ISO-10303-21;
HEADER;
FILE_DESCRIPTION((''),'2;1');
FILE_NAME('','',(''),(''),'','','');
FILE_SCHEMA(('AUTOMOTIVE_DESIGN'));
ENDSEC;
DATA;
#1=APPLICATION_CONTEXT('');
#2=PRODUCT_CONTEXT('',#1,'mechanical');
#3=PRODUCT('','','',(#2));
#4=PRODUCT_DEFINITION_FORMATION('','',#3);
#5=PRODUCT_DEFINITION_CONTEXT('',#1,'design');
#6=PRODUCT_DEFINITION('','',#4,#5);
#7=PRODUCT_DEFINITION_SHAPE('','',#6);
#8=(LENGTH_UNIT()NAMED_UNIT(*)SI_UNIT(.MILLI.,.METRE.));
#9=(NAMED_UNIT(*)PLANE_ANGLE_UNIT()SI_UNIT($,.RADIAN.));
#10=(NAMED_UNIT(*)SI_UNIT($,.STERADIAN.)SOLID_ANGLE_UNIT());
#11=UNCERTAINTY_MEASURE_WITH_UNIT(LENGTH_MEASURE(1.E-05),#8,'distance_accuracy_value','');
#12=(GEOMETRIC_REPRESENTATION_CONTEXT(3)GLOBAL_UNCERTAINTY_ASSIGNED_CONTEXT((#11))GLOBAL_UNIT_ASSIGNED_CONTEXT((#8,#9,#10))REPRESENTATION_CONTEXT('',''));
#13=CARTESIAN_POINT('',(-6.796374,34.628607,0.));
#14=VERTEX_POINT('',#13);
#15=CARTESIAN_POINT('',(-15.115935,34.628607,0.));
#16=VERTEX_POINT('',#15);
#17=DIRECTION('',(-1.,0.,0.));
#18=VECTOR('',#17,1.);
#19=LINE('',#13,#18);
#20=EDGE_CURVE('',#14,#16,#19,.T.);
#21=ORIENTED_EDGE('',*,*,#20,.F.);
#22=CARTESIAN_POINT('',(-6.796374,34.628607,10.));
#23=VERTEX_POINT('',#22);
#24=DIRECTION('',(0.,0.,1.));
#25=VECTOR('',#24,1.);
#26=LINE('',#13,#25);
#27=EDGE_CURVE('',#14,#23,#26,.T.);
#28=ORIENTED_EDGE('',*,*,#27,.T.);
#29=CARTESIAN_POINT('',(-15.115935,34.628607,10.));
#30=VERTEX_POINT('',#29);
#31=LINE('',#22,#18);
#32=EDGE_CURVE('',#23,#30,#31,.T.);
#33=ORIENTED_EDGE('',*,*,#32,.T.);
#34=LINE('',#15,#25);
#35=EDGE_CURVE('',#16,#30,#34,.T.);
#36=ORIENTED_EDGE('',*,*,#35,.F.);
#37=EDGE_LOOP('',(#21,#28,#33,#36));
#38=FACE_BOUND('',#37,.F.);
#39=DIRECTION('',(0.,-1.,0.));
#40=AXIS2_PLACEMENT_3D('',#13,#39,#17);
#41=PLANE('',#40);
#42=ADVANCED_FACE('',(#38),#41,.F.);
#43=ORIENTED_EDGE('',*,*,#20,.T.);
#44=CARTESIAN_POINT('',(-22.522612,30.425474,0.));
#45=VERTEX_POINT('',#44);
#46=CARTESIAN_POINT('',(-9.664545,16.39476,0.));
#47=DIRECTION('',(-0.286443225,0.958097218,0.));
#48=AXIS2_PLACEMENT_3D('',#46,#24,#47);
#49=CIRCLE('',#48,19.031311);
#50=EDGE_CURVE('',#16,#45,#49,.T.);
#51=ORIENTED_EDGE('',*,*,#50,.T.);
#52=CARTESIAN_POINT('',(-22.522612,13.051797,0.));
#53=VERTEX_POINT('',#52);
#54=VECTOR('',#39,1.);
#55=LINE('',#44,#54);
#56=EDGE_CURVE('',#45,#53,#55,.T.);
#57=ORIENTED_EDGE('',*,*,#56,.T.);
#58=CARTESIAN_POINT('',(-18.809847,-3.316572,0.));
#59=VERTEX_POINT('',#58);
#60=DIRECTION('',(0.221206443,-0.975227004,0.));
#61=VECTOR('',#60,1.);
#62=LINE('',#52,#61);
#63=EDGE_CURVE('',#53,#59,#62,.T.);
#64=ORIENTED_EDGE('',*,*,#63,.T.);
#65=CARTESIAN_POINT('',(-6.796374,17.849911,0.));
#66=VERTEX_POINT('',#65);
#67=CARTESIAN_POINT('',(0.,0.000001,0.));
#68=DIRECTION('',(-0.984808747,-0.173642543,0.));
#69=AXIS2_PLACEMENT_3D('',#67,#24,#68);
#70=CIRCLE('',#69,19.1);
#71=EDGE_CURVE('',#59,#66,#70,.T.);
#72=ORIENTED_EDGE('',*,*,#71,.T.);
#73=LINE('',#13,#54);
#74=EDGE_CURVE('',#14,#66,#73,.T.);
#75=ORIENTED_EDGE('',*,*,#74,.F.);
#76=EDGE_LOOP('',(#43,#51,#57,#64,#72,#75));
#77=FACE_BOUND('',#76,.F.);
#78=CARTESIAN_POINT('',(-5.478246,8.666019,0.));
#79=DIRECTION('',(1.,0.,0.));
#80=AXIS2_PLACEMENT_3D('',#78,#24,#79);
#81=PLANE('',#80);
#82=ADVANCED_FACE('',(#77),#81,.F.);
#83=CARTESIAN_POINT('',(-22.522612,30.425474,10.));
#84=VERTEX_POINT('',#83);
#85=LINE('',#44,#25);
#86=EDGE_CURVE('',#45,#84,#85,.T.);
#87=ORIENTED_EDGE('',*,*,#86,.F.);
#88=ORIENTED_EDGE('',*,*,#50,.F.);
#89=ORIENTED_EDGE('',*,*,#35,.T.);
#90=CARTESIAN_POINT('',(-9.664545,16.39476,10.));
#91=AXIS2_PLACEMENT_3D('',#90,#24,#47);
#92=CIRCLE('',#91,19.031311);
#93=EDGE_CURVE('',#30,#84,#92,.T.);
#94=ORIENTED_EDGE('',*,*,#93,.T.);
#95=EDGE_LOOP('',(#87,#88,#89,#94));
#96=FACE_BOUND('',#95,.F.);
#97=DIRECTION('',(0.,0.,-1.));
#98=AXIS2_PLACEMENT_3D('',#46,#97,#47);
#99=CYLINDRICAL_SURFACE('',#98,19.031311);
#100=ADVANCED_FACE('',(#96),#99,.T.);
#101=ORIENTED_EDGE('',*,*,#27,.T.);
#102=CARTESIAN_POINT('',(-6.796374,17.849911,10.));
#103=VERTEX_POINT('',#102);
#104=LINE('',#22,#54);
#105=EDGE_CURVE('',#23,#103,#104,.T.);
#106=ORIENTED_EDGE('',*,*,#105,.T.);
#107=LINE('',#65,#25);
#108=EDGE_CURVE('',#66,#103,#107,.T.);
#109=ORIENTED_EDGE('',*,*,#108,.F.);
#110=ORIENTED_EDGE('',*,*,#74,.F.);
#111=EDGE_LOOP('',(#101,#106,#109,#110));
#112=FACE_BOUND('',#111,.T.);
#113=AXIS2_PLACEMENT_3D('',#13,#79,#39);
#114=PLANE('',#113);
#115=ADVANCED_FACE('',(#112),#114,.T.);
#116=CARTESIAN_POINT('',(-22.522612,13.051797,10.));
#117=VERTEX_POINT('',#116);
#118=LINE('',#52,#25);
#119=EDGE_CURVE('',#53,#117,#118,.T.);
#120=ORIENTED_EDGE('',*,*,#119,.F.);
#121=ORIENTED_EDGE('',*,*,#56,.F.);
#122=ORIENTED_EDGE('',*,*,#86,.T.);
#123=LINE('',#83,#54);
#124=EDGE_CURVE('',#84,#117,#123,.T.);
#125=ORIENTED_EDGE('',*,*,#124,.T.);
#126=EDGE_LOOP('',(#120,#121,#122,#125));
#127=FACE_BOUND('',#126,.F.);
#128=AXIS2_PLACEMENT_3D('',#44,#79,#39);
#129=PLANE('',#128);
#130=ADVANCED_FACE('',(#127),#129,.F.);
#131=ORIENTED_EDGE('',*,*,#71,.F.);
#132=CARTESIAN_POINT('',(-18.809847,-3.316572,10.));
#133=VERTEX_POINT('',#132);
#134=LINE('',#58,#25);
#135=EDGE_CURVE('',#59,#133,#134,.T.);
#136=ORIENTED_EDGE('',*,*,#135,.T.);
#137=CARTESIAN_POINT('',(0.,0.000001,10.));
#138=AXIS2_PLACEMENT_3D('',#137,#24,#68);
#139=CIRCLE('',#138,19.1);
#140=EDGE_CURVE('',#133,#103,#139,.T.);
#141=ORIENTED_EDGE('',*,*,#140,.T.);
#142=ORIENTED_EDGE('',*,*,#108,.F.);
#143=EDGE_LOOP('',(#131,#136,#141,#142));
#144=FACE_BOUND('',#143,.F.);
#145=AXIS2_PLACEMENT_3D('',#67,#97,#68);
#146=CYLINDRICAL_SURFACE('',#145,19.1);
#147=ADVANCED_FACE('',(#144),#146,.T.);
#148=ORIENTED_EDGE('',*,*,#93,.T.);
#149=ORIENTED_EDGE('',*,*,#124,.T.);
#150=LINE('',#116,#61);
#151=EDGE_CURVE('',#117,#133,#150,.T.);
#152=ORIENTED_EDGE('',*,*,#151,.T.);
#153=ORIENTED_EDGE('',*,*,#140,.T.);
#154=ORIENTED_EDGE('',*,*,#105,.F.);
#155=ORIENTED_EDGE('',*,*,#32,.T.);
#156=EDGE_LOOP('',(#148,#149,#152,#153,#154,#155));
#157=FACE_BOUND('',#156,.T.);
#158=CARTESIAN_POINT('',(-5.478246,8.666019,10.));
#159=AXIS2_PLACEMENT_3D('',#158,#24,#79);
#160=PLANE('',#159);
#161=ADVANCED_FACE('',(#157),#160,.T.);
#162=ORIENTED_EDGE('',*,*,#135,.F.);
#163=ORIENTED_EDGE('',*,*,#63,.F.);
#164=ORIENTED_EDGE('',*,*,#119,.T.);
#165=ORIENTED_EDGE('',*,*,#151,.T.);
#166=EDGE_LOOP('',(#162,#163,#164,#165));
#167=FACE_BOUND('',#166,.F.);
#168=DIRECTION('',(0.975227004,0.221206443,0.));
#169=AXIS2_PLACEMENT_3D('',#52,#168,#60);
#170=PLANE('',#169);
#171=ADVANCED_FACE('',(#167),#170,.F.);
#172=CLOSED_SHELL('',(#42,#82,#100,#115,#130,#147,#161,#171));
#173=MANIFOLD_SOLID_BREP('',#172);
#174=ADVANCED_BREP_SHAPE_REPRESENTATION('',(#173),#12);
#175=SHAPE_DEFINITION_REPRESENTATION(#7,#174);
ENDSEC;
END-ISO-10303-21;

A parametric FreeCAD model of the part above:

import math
import FreeCAD as App
import Part
import Sketcher
from FreeCAD import Vector

doc = App.newDocument("Part")
body = doc.addObject("PartDesign::Body", "Body")

# Sketch on XY plane
sketch1 = doc.addObject("Sketcher::SketchObject", "Sketch")
body.addObject(sketch1)
sketch1.AttachmentSupport = (doc.XY_Plane, [""])
sketch1.MapMode = "FlatFace"
sketch1.addGeometry([
    Part.ArcOfCircle(Part.Circle(Vector(0, 0, 0), Vector(0, 0, 1), 19), math.radians(-170), math.radians(111)),  # 0
    Part.LineSegment(Vector(-7, 18, 0), Vector(-7, 35, 0)),  # 1
    Part.LineSegment(Vector(-7, 35, 0), Vector(-15, 35, 0)),  # 2
    Part.ArcOfCircle(Part.Circle(Vector(-10, 16, 0), Vector(0, 0, 1), 19), math.radians(107), math.radians(133)),  # 3
    Part.LineSegment(Vector(-23, 30, 0), Vector(-23, 13, 0)),  # 4
    Part.LineSegment(Vector(-23, 13, 0), Vector(-19, -3, 0)),  # 5
], False)
sketch1.addConstraint([
    Sketcher.Constraint("Coincident", 0, 2, 1, 1),
    Sketcher.Constraint("Coincident", 1, 2, 2, 1),
    Sketcher.Constraint("Coincident", 2, 2, 3, 1),
    Sketcher.Constraint("Coincident", 3, 2, 4, 1),
    Sketcher.Constraint("Coincident", 4, 2, 5, 1),
    Sketcher.Constraint("Coincident", 5, 2, 0, 1),
    Sketcher.Constraint("Vertical", 1),
    Sketcher.Constraint("Horizontal", 2),
    Sketcher.Constraint("Vertical", 4),
    Sketcher.Constraint("Coincident", 0, 3, -1, 1),
    Sketcher.Constraint("Radius", 0, 19.1),
    Sketcher.Constraint("Radius", 3, 19.031311),
    Sketcher.Constraint("DistanceX", 2, 2, 2, 1, 8.319561),
    Sketcher.Constraint("DistanceY", 1, 1, 1, 2, 16.778696),
    Sketcher.Constraint("DistanceY", 4, 2, 4, 1, 17.373677),
    Sketcher.Constraint("DistanceY", -1, 1, 3, 3, 16.39476),
    Sketcher.Constraint("DistanceY", -1, 1, 0, 2, 17.849911),
    Sketcher.Constraint("DistanceX", 4, 2, -1, 1, 22.522612),
    Sketcher.Constraint("DistanceY", 5, 2, -1, 1, 3.316572),
])
pad1 = doc.addObject("PartDesign::Pad", "Pad")
body.addObject(pad1)
pad1.Profile = sketch1
pad1.Length = 10

doc.recompute()
